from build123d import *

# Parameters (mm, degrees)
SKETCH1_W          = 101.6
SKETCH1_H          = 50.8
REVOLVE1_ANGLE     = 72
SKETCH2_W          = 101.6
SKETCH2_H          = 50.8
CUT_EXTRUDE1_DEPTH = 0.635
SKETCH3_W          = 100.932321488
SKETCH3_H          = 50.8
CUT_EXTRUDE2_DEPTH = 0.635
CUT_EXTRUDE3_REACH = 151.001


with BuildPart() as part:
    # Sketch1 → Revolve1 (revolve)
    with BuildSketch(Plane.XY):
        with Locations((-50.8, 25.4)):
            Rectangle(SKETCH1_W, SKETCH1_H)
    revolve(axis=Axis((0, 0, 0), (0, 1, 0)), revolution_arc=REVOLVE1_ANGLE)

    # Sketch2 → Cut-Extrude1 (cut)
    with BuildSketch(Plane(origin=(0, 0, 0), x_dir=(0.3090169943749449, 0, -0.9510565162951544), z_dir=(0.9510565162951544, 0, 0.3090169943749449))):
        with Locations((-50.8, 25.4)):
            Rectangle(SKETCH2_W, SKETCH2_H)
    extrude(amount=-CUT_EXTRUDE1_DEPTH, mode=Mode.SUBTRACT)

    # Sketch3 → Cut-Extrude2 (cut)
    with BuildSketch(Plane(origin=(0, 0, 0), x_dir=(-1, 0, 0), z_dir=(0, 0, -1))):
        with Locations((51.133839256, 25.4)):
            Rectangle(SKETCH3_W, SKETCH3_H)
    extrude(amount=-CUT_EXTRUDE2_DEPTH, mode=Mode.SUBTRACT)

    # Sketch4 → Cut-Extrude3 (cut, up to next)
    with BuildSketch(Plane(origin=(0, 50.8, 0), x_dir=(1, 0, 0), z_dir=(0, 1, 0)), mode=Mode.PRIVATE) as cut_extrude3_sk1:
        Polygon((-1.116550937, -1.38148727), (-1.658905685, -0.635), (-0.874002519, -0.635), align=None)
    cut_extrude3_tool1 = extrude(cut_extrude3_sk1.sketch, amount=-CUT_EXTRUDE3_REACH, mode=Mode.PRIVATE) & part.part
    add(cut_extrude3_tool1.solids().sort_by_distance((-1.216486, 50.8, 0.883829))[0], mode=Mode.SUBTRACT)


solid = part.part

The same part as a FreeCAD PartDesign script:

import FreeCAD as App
import Part
import Sketcher
from FreeCAD import Vector
Q = App.Units.Quantity


def add_polygon(sketch, points):
    """Adds a closed chain of lines whose ends are joined by coincident constraints."""
    first, n = sketch.GeometryCount, len(points)
    for a, b in zip(points, points[1:] + points[:1]):
        sketch.addGeometry(Part.LineSegment(App.Vector(*a, 0), App.Vector(*b, 0)), False)
    for i in range(n):
        sketch.addConstraint(Sketcher.Constraint("Coincident", first + i, 2, first + (i + 1) % n, 1))

doc = App.newDocument("Part")
body = doc.addObject("PartDesign::Body", "Body")

# Sketch on XY plane
sketch1 = body.newObject("Sketcher::SketchObject", "Sketch")
sketch1.AttachmentSupport = (doc.getObject("XY_Plane"), [""])
sketch1.MapMode = "FlatFace"
add_polygon(sketch1, [(-101.6, 50.8), (-101.6, 0), (0, 0), (0, 50.8)])  # lines 0-3
sketch1.addConstraint([
    Sketcher.Constraint("Vertical", 0),
    Sketcher.Constraint("Horizontal", 1),
    Sketcher.Constraint("Vertical", 2),
    Sketcher.Constraint("Horizontal", 3),
    Sketcher.Constraint("Coincident", 1, 2, -1, 1),
    Sketcher.Constraint("DistanceX", 1, 1, 1, 2, Q("4 in")),
    Sketcher.Constraint("DistanceY", 0, 2, 0, 1, Q("2 in")),
])
revolution = body.newObject("PartDesign::Revolution", "Revolution")
revolution.Profile = sketch1
revolution.ReferenceAxis = (sketch1, ["V_Axis"])
revolution.Angle = 72

# Sketch on an angled plane
sketch2 = body.newObject("Sketcher::SketchObject", "Sketch001")
sketch2.Placement = App.Placement(Vector(0, 0, 0), App.Rotation(Vector(0.309016994, 0, -0.951056516), Vector(0, 0.999999999, 0), Vector(0.951056516, 0, 0.309016994), "ZXY"))
add_polygon(sketch2, [(-101.6, 50.8), (-101.6, 0), (0, 0), (0, 50.8)])  # lines 0-3
sketch2.addConstraint([
    Sketcher.Constraint("Vertical", 0),
    Sketcher.Constraint("Horizontal", 1),
    Sketcher.Constraint("Vertical", 2),
    Sketcher.Constraint("Horizontal", 3),
    Sketcher.Constraint("Coincident", 1, 2, -1, 1),
    Sketcher.Constraint("DistanceX", 1, 1, 1, 2, Q("4 in")),
    Sketcher.Constraint("DistanceY", 0, 2, 0, 1, Q("2 in")),
])
pocket1 = body.newObject("PartDesign::Pocket", "Pocket")
pocket1.Profile = sketch2
pocket1.Length = Q("0.025 in")

# Sketch on XY plane
sketch3 = body.newObject("Sketcher::SketchObject", "Sketch002")
sketch3.AttachmentSupport = (doc.getObject("XY_Plane"), [""])
sketch3.MapMode = "FlatFace"
add_polygon(sketch3, [(-0.667679, 50.8), (-0.667679, 0), (-101.6, 0), (-101.6, 50.8)])  # lines 0-3
sketch3.addConstraint([
    Sketcher.Constraint("Vertical", 0),
    Sketcher.Constraint("Horizontal", 1),
    Sketcher.Constraint("Vertical", 2),
    Sketcher.Constraint("Horizontal", 3),
    Sketcher.Constraint("PointOnObject", 0, 2, -1),
    Sketcher.Constraint("DistanceY", 0, 2, 0, 1, Q("2 in")),
    Sketcher.Constraint("DistanceX", 1, 2, -1, 1, Q("4 in")),
    Sketcher.Constraint("DistanceX", 1, 2, 1, 1, Q("100.932321 mm")),
])
pocket2 = body.newObject("PartDesign::Pocket", "Pocket001")
pocket2.Profile = sketch3
pocket2.Length = Q("0.025 in")
pocket2.Reversed = True

# Sketch on XZ plane
sketch4 = body.newObject("Sketcher::SketchObject", "Sketch003")
sketch4.AttachmentSupport = (doc.getObject("XZ_Plane"), [""])
sketch4.MapMode = "FlatFace"
sketch4.AttachmentOffset = App.Placement(Vector(0, 0, -2 * 25.4), App.Rotation())
add_polygon(sketch4, [(-1.658906, 0.635), (-1.116551, 1.381487), (-0.874003, 0.635)])  # lines 0-2
sketch4.addConstraint([
    Sketcher.Constraint("Horizontal", 2),
    Sketcher.Constraint("Angle", 0, Q("54 deg")),
    Sketcher.Constraint("Angle", 1, Q("-72 deg")),
    Sketcher.Constraint("DistanceY", -1, 1, 1, 2, Q("0.025 in")),
    Sketcher.Constraint("Distance", 0, Q("0.922709 mm")),
    Sketcher.Constraint("DistanceX", 0, 2, -1, 1, Q("1.116551 mm")),
])
pocket3 = body.newObject("PartDesign::Pocket", "Pocket002")
pocket3.Profile = sketch4
pocket3.Type = "UpToFirst"
pocket3.Reversed = True

doc.recompute()
